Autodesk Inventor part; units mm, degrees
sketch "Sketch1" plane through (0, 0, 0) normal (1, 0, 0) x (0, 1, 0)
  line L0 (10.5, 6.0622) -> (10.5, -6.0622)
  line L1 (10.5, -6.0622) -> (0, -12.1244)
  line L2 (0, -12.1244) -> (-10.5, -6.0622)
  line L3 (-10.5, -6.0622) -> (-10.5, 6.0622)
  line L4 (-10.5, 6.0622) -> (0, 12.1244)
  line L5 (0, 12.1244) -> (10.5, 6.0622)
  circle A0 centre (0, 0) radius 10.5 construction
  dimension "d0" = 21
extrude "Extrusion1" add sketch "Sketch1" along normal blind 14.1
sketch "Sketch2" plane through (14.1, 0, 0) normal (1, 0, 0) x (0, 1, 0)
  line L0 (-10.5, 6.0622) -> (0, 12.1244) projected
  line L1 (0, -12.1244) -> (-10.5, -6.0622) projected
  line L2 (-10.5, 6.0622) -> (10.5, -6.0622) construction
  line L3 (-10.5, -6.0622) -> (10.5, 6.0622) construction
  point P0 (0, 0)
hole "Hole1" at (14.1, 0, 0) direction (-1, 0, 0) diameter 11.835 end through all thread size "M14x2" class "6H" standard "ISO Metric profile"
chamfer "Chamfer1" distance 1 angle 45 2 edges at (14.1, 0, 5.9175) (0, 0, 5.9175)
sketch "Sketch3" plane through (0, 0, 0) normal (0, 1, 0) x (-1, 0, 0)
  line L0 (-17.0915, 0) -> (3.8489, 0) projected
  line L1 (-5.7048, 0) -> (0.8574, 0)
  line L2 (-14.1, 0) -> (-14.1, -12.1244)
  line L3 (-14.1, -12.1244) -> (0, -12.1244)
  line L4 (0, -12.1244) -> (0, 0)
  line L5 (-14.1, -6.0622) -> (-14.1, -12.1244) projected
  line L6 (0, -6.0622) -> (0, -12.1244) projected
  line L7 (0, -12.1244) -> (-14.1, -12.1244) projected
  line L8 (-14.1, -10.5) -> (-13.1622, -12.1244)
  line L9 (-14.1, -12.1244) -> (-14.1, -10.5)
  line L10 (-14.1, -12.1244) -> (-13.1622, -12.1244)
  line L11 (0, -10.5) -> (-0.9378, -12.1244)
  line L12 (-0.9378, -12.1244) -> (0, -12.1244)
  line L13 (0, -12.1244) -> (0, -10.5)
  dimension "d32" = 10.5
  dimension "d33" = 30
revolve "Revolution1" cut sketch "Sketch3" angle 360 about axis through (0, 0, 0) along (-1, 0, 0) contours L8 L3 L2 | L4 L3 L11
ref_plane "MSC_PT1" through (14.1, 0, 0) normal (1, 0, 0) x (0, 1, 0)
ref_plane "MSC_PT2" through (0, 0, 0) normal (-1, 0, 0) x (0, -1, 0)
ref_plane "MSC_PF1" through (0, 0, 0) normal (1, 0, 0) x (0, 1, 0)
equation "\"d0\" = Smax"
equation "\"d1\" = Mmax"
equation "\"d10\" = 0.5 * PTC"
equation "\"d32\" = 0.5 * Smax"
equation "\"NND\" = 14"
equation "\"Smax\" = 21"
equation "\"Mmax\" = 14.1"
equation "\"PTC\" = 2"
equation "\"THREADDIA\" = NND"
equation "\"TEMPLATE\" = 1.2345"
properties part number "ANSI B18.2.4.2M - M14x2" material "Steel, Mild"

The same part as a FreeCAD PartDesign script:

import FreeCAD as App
import Part
import Sketcher
Q = App.Units.Quantity


def edges_at(feature, points):
    """Names of the edges that pass closest to the given points."""
    edges = feature.Shape.Edges
    near = lambda p: min(range(len(edges)), key=lambda i: edges[i].distToShape(Part.Vertex(*p))[0])
    return sorted({f"Edge{near(p) + 1}" for p in points})


def add_polygon(sketch, points):
    """Adds a closed chain of lines whose ends are joined by coincident constraints."""
    first, n = sketch.GeometryCount, len(points)
    for a, b in zip(points, points[1:] + points[:1]):
        sketch.addGeometry(Part.LineSegment(App.Vector(*a, 0), App.Vector(*b, 0)), False)
    for i in range(n):
        sketch.addConstraint(Sketcher.Constraint("Coincident", first + i, 2, first + (i + 1) % n, 1))

doc = App.newDocument("Part")
params = doc.addObject("Spreadsheet::Sheet", "Params")
for row, (alias, value) in enumerate([
    ("pad1_length", "14.1 mm"),
    ("hole_diameter", "11.835 mm"),
    ("chamfer_size", "1 mm"),
    ("groove_angle", "360 deg"),
], start=1):
    params.set(f"A{row}", alias)
    params.set(f"B{row}", "=" + value)
    params.setAlias(f"B{row}", alias)

body = doc.addObject("PartDesign::Body", "Body")

sketch1 = body.newObject("Sketcher::SketchObject", "Sketch")
sketch1.AttachmentSupport = (doc.getObject("YZ_Plane"), [""])
sketch1.MapMode = "FlatFace"
add_polygon(sketch1, [(10.5, -6.0622), (10.5, 6.0622), (0, 12.1244), (-10.5, 6.0622), (-10.5, -6.0622), (0, -12.1244)])
sketch1.addConstraint(Sketcher.Constraint("Vertical", 0))
sketch1.addConstraint(Sketcher.Constraint("Vertical", 3))
sketch1.addConstraint(Sketcher.Constraint("Symmetric", 0, 2, 3, 2, -1, 1))
sketch1.addConstraint(Sketcher.Constraint("Symmetric", 1, 2, 4, 2, -1, 1))
sketch1.addConstraint(Sketcher.Constraint("PointOnObject", 1, 2, -2))
sketch1.addConstraint(Sketcher.Constraint("Parallel", 2, 5))
sketch1.addConstraint(Sketcher.Constraint("Horizontal", 0, 2, 2, 2))
sketch1.addConstraint(Sketcher.Constraint("DistanceX", 2, 2, 0, 2, 21.0))
sketch1.addConstraint(Sketcher.Constraint("Angle", 1, Q("150 deg")))
sketch1.addConstraint(Sketcher.Constraint("DistanceY", 0, 1, 0, 2, 12.1244))
pad1 = body.newObject("PartDesign::Pad", "Pad")
pad1.Profile = sketch1
pad1.setExpression("Length", "Params.pad1_length")

sketch2 = body.newObject("Sketcher::SketchObject", "Sketch001")
sketch2.AttachmentSupport = (doc.getObject("YZ_Plane"), [""])
sketch2.MapMode = "FlatFace"
sketch2.AttachmentOffset = App.Placement(App.Vector(0, 0, 14.1), App.Rotation())
sketch2.addGeometry(Part.Circle(App.Vector(0, 0, 0), App.Vector(0, 0, 1), 5.9175), False)
sketch2.addConstraint(Sketcher.Constraint("Coincident", 0, 3, -1, 1))
sketch2.addConstraint(Sketcher.Constraint("Diameter", 0, 11.835))
doc.recompute()
hole = body.newObject("PartDesign::Hole", "Hole")
hole.Profile = sketch2
hole.ThreadType = "None"
hole.setExpression("Diameter", "Params.hole_diameter")
hole.DepthType = "ThroughAll"
doc.recompute()

chamfer = body.newObject("PartDesign::Chamfer", "Chamfer")
chamfer.Base = (hole, edges_at(hole, [(14.1, 0, 5.918), (0, 0, 5.918)]))
chamfer.setExpression("Size", "Params.chamfer_size")

sketch3 = body.newObject("Sketcher::SketchObject", "Sketch002")
sketch3.AttachmentSupport = (doc.getObject("XZ_Plane"), [""])
sketch3.MapMode = "FlatFace"
add_polygon(sketch3, [(13.1622, -12.1244), (14.1, -10.5), (14.1, -12.1244)])
add_polygon(sketch3, [(0, -12.1244), (0, -10.5), (0.9378, -12.1244)])
sketch3.addConstraint(Sketcher.Constraint("Vertical", 1))
sketch3.addConstraint(Sketcher.Constraint("Horizontal", 2))
sketch3.addConstraint(Sketcher.Constraint("Vertical", 3))
sketch3.addConstraint(Sketcher.Constraint("Horizontal", 5))
sketch3.addConstraint(Sketcher.Constraint("PointOnObject", 3, 2, -2))
sketch3.addConstraint(Sketcher.Constraint("Horizontal", 0, 2, 3, 2))
sketch3.addConstraint(Sketcher.Constraint("Horizontal", 2, 2, 4, 2))
sketch3.addConstraint(Sketcher.Constraint("Equal", 2, 5))
sketch3.addConstraint(Sketcher.Constraint("DistanceY", 0, 2, -1, 1, 10.5))
sketch3.addConstraint(Sketcher.Constraint("DistanceX", -1, 1, 0, 2, 14.1))
sketch3.addConstraint(Sketcher.Constraint("DistanceX", 2, 2, 2, 1, 0.9378))
sketch3.addConstraint(Sketcher.Constraint("DistanceY", 1, 2, 1, 1, 1.6244))
groove = body.newObject("PartDesign::Groove", "Groove")
groove.Profile = sketch3
groove.ReferenceAxis = (sketch3, ["H_Axis"])
groove.setExpression("Angle", "Params.groove_angle")

doc.recompute()
